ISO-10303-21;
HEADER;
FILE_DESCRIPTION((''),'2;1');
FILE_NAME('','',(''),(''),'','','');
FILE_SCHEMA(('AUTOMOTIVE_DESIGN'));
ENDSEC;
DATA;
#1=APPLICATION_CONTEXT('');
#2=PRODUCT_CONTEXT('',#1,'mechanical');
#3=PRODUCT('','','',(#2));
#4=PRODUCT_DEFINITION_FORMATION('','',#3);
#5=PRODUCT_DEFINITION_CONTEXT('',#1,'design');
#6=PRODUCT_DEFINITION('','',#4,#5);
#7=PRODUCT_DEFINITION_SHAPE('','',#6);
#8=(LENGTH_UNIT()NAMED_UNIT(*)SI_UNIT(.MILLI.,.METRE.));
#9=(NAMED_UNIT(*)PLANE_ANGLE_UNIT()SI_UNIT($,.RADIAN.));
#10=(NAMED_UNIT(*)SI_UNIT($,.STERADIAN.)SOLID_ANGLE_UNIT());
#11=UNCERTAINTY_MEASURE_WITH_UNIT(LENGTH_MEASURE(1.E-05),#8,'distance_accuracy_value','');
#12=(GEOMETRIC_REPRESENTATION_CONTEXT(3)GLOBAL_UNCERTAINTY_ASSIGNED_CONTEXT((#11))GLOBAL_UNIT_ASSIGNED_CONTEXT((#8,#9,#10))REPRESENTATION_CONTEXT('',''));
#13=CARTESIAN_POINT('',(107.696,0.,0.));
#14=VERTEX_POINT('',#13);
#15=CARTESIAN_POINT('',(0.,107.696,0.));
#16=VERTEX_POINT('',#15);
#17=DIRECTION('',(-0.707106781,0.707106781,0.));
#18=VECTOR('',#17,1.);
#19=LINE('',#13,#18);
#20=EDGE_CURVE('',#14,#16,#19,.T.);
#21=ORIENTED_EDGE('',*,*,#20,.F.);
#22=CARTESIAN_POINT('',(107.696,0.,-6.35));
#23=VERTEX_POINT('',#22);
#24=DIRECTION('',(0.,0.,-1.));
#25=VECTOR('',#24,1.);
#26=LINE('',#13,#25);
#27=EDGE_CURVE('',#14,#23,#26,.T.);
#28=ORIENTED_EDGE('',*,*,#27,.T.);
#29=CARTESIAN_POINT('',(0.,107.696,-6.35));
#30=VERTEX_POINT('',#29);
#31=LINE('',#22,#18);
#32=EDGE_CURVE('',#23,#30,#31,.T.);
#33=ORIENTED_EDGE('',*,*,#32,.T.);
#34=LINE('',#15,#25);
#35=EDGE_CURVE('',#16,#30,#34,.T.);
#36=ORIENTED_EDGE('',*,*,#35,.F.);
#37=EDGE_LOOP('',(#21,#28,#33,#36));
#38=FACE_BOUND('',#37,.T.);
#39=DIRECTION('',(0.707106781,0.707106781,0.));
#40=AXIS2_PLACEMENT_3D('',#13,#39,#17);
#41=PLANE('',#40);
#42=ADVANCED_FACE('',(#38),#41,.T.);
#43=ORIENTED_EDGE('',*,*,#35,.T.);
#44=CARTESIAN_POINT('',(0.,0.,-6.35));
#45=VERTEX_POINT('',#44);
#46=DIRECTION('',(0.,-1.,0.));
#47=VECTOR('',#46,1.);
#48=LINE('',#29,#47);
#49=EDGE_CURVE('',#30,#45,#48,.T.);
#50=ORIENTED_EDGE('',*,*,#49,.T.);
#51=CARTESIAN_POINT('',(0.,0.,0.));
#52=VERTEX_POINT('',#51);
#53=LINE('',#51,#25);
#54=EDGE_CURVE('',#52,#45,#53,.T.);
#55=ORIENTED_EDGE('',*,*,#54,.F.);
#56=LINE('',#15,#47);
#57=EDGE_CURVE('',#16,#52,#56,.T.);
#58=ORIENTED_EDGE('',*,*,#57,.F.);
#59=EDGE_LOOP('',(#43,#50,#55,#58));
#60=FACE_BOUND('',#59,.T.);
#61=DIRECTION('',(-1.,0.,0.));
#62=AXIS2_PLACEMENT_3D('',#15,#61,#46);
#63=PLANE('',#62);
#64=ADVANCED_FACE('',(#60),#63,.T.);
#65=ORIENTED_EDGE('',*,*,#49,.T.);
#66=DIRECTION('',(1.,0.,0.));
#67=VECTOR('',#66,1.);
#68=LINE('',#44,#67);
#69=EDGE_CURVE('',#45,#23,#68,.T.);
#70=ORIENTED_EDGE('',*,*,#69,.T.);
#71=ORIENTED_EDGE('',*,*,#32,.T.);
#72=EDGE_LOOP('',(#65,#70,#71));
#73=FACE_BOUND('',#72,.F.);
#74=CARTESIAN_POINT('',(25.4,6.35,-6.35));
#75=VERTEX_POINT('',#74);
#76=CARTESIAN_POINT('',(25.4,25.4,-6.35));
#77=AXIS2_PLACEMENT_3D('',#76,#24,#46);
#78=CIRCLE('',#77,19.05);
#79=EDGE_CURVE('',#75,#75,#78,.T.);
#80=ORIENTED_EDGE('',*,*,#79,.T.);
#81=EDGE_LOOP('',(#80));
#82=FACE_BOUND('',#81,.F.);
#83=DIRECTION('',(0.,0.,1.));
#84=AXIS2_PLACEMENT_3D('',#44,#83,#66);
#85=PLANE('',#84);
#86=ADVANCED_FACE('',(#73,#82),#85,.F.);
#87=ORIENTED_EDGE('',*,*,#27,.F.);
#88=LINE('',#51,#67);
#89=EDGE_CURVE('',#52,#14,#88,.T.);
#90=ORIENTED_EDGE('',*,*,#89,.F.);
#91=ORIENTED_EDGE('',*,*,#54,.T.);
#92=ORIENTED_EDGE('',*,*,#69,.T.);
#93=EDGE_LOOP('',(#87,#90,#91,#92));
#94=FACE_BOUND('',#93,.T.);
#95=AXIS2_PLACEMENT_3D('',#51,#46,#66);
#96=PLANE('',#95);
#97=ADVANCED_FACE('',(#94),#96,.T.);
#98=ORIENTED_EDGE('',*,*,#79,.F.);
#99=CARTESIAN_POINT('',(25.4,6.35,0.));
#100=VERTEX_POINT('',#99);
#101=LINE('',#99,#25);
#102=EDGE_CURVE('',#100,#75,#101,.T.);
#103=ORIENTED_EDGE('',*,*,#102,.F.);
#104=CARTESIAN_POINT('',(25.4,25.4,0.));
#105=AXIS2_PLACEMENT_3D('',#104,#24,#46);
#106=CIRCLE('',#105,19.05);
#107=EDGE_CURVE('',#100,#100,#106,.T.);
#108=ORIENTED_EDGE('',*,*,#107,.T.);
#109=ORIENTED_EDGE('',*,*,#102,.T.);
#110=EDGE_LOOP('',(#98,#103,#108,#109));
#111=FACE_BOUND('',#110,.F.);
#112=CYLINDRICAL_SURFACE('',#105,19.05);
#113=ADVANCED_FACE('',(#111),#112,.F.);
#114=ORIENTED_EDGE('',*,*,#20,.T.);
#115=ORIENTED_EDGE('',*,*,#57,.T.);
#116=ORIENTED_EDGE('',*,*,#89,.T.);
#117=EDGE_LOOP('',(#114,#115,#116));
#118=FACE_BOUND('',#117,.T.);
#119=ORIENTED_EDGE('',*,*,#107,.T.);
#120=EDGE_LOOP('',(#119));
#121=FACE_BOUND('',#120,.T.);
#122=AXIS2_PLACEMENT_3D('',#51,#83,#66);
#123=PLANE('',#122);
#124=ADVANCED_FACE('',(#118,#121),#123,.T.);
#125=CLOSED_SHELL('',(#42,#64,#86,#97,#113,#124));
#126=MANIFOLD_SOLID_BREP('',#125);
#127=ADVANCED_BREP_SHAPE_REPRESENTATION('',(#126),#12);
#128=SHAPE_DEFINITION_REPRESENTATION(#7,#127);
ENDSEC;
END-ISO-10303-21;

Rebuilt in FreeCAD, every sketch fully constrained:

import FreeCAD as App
import Part
import Sketcher
Q = App.Units.Quantity

doc = App.newDocument("Part")
body = doc.addObject("PartDesign::Body", "Body")

sketch1 = doc.addObject("Sketcher::SketchObject", "Sketch")
body.addObject(sketch1)
sketch1.AttachmentSupport = (doc.XY_Plane, [""])
sketch1.MapMode = "FlatFace"
sketch1.addGeometry(Part.LineSegment(App.Vector(0, 108, 0), App.Vector(0, 0, 0)), False)
sketch1.addGeometry(Part.LineSegment(App.Vector(0, 0, 0), App.Vector(108, 0, 0)), False)
sketch1.addGeometry(Part.LineSegment(App.Vector(108, 0, 0), App.Vector(0, 108, 0)), False)
sketch1.addConstraint(Sketcher.Constraint("Coincident", 0, 2, 1, 1))
sketch1.addConstraint(Sketcher.Constraint("Coincident", 1, 2, 2, 1))
sketch1.addConstraint(Sketcher.Constraint("Coincident", 2, 2, 0, 1))
sketch1.addConstraint(Sketcher.Constraint("Vertical", 0))
sketch1.addConstraint(Sketcher.Constraint("Horizontal", 1))
sketch1.addConstraint(Sketcher.Constraint("Coincident", 0, 2, -1, 1))
sketch1.addConstraint(Sketcher.Constraint("Equal", 1, 0))
sketch1.addConstraint(Sketcher.Constraint("DistanceX", 1, 1, 1, 2, Q("4.24 in")))
pad1 = doc.addObject("PartDesign::Pad", "Pad")
body.addObject(pad1)
pad1.Profile = sketch1
pad1.Length = Q("0.25 in")
pad1.Reversed = True

sketch2 = doc.addObject("Sketcher::SketchObject", "Sketch001")
body.addObject(sketch2)
sketch2.AttachmentSupport = (doc.XY_Plane, [""])
sketch2.MapMode = "FlatFace"
sketch2.addGeometry(Part.Circle(App.Vector(25, 25, 0), App.Vector(0, 0, 1), 19), False)
sketch2.addConstraint(Sketcher.Constraint("Diameter", 0, Q("1.5 in")))
sketch2.addConstraint(Sketcher.Constraint("DistanceX", -1, 1, 0, 3, Q("1 in")))
sketch2.addConstraint(Sketcher.Constraint("DistanceY", -1, 1, 0, 3, Q("1 in")))
doc.recompute()
hole = doc.addObject("PartDesign::Hole", "Hole")
body.addObject(hole)
hole.Profile = sketch2
hole.ThreadType = "None"
hole.Diameter = Q("1.5 in")
hole.DepthType = "ThroughAll"

doc.recompute()
